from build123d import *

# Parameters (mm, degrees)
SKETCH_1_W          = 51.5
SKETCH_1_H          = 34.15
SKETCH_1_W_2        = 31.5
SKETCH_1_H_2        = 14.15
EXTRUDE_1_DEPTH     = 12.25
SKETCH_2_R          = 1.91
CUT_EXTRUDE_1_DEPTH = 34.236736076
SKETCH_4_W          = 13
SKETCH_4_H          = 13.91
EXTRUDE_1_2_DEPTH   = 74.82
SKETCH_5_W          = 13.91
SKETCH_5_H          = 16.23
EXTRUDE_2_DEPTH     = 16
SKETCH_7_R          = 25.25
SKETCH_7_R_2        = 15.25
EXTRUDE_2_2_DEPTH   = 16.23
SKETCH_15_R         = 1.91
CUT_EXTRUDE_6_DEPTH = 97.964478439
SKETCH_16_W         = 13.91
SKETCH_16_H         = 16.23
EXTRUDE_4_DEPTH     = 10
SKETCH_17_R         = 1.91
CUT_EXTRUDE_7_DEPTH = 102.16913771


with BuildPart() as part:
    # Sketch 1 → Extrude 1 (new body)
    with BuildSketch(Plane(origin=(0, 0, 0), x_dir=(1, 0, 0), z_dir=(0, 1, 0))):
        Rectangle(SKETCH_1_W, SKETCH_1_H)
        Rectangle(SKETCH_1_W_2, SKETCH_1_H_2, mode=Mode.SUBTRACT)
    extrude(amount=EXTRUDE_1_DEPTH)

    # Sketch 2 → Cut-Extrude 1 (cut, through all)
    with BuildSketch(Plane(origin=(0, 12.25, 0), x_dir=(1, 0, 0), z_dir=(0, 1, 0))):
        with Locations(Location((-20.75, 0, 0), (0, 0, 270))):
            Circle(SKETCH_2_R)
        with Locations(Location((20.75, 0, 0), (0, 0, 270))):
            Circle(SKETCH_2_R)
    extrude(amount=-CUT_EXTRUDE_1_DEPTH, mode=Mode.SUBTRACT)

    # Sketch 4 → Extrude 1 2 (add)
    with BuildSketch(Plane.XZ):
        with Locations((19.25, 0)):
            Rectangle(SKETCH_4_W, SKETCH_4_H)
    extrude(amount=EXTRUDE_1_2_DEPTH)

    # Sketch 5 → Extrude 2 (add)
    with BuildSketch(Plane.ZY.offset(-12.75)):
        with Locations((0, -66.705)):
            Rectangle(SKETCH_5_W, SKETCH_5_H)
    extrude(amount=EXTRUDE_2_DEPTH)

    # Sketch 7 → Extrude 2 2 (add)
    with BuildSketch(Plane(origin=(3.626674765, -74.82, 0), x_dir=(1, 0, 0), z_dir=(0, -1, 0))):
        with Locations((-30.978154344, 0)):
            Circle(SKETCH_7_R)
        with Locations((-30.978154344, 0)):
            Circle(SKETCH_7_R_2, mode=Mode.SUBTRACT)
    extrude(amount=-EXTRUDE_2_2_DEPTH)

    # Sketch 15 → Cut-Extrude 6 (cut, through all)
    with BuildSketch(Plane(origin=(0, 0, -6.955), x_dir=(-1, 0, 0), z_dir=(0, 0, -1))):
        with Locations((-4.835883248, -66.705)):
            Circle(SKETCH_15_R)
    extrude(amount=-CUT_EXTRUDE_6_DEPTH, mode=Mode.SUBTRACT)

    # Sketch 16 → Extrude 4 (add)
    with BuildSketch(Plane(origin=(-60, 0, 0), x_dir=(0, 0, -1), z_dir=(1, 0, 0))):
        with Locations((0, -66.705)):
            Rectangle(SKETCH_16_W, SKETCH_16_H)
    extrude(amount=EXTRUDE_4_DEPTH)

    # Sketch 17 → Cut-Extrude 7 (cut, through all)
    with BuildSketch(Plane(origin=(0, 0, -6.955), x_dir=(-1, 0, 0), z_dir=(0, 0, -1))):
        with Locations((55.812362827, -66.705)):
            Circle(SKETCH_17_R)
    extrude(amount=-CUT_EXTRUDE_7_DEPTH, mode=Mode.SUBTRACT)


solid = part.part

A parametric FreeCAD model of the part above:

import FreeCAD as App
import Part
import Sketcher
from FreeCAD import Vector
Q = App.Units.Quantity


def add_polygon(sketch, points):
    """Adds a closed chain of lines whose ends are joined by coincident constraints."""
    first, n = sketch.GeometryCount, len(points)
    for a, b in zip(points, points[1:] + points[:1]):
        sketch.addGeometry(Part.LineSegment(App.Vector(*a, 0), App.Vector(*b, 0)), False)
    for i in range(n):
        sketch.addConstraint(Sketcher.Constraint("Coincident", first + i, 2, first + (i + 1) % n, 1))

doc = App.newDocument("Part")
body = doc.addObject("PartDesign::Body", "Body")

# Sketch on XZ plane
sketch1 = doc.addObject("Sketcher::SketchObject", "Sketch")
body.addObject(sketch1)
sketch1.AttachmentSupport = (doc.XZ_Plane, [""])
sketch1.MapMode = "FlatFace"
add_polygon(sketch1, [(-26, -17), (-26, 17), (26, 17), (26, -17)])  # lines 0-3
add_polygon(sketch1, [(16, 7), (-16, 7), (-16, -7), (16, -7)])  # lines 4-7
sketch1.addConstraint([
    Sketcher.Constraint("Vertical", 0),
    Sketcher.Constraint("Horizontal", 1),
    Sketcher.Constraint("Vertical", 2),
    Sketcher.Constraint("Horizontal", 3),
    Sketcher.Constraint("Horizontal", 4),
    Sketcher.Constraint("Vertical", 5),
    Sketcher.Constraint("Horizontal", 6),
    Sketcher.Constraint("Vertical", 7),
    Sketcher.Constraint("Symmetric", 0, 2, 2, 2, -1, 1),
    Sketcher.Constraint("Symmetric", 4, 2, 6, 2, -1, 1),
    Sketcher.Constraint("DistanceX", 1, 1, 1, 2, Q("51.5 mm")),
    Sketcher.Constraint("DistanceX", 4, 2, 4, 1, Q("31.5 mm")),
    Sketcher.Constraint("DistanceY", 4, 2, 0, 2, Q("10 mm")),
    Sketcher.Constraint("DistanceY", 0, 1, 0, 2, Q("34.15 mm")),
])
pad1 = doc.addObject("PartDesign::Pad", "Pad")
body.addObject(pad1)
pad1.Profile = sketch1
pad1.Length = 12.25
pad1.Reversed = True

# Sketch on XZ plane
sketch2 = doc.addObject("Sketcher::SketchObject", "Sketch001")
body.addObject(sketch2)
sketch2.AttachmentSupport = (doc.XZ_Plane, [""])
sketch2.MapMode = "FlatFace"
sketch2.AttachmentOffset = App.Placement(Vector(0, 0, -12.25), App.Rotation())
sketch2.addGeometry([
    Part.Circle(Vector(-20.8, 0, 0), Vector(0, 0, 1), 1.9),
    Part.Circle(Vector(20.8, 0, 0), Vector(0, 0, 1), 1.9),
], False)
sketch2.addConstraint([
    Sketcher.Constraint("Equal", 0, 1),
    Sketcher.Constraint("Symmetric", 0, 3, 1, 3, -1, 1),
    Sketcher.Constraint("PointOnObject", 0, 3, -1),
    Sketcher.Constraint("Diameter", 0, Q("3.82 mm")),
    Sketcher.Constraint("DistanceX", 0, 3, 1, 3, Q("41.5 mm")),
])
pocket1 = doc.addObject("PartDesign::Pocket", "Pocket")
body.addObject(pocket1)
pocket1.Profile = sketch2
pocket1.Type = "ThroughAll"
pocket1.Reversed = True

# Sketch on XZ plane
sketch3 = doc.addObject("Sketcher::SketchObject", "Sketch002")
body.addObject(sketch3)
sketch3.AttachmentSupport = (doc.XZ_Plane, [""])
sketch3.MapMode = "FlatFace"
add_polygon(sketch3, [(13, 7), (13, -7), (26, -7), (26, 7)])  # lines 0-3
sketch3.addConstraint([
    Sketcher.Constraint("Vertical", 0),
    Sketcher.Constraint("Horizontal", 1),
    Sketcher.Constraint("Vertical", 2),
    Sketcher.Constraint("Horizontal", 3),
    Sketcher.Constraint("DistanceX", 1, 1, 1, 2, Q("13 mm")),
    Sketcher.Constraint("DistanceY", 0, 2, 0, 1, Q("13.91 mm")),
    Sketcher.Constraint("DistanceX", -1, 1, 0, 2, Q("12.75 mm")),
    Sketcher.Constraint("DistanceY", 0, 2, -1, 1, Q("6.955 mm")),
])
pad2 = doc.addObject("PartDesign::Pad", "Pad001")
body.addObject(pad2)
pad2.Profile = sketch3
pad2.Length = 74.82

# Sketch on YZ plane
sketch4 = doc.addObject("Sketcher::SketchObject", "Sketch003")
body.addObject(sketch4)
sketch4.AttachmentSupport = (doc.YZ_Plane, [""])
sketch4.MapMode = "FlatFace"
sketch4.AttachmentOffset = App.Placement(Vector(0, 0, 12.75), App.Rotation())
add_polygon(sketch4, [(-59, -7), (-75, -7), (-75, 7), (-59, 7)])  # lines 0-3
sketch4.addConstraint([
    Sketcher.Constraint("Horizontal", 0),
    Sketcher.Constraint("Vertical", 1),
    Sketcher.Constraint("Horizontal", 2),
    Sketcher.Constraint("Vertical", 3),
    Sketcher.Constraint("DistanceX", 0, 2, 0, 1, Q("16.23 mm")),
    Sketcher.Constraint("DistanceY", 1, 1, 1, 2, Q("13.91 mm")),
    Sketcher.Constraint("DistanceX", 0, 2, -1, 1, Q("74.82 mm")),
    Sketcher.Constraint("DistanceY", 0, 2, -1, 1, Q("6.955 mm")),
])
pad3 = doc.addObject("PartDesign::Pad", "Pad002")
body.addObject(pad3)
pad3.Profile = sketch4
pad3.Length = 16
pad3.Reversed = True

# Sketch on XZ plane
sketch5 = doc.addObject("Sketcher::SketchObject", "Sketch004")
body.addObject(sketch5)
sketch5.AttachmentSupport = (doc.XZ_Plane, [""])
sketch5.MapMode = "FlatFace"
sketch5.AttachmentOffset = App.Placement(Vector(0, 0, 74.82), App.Rotation())
sketch5.addGeometry([
    Part.Circle(Vector(-27, 0, 0), Vector(0, 0, 1), 25),
    Part.Circle(Vector(-27, 0, 0), Vector(0, 0, 1), 15),
], False)
sketch5.addConstraint([
    Sketcher.Constraint("Coincident", 1, 3, 0, 3),
    Sketcher.Constraint("PointOnObject", 0, 3, -1),
    Sketcher.Constraint("Diameter", 0, Q("50.5 mm")),
    Sketcher.Constraint("Diameter", 1, Q("30.5 mm")),
    Sketcher.Constraint("DistanceX", 0, 3, -1, 1, Q("27.35148 mm")),
])
pad4 = doc.addObject("PartDesign::Pad", "Pad003")
body.addObject(pad4)
pad4.Profile = sketch5
pad4.Length = 16.23
pad4.Reversed = True

# Sketch on XY plane
sketch6 = doc.addObject("Sketcher::SketchObject", "Sketch005")
body.addObject(sketch6)
sketch6.AttachmentSupport = (doc.XY_Plane, [""])
sketch6.MapMode = "FlatFace"
sketch6.AttachmentOffset = App.Placement(Vector(0, 0, -6.955), App.Rotation())
sketch6.addGeometry(Part.Circle(Vector(4.8, -66.7, 0), Vector(0, 0, 1), 1.9), False)
sketch6.addConstraint([
    Sketcher.Constraint("Diameter", 0, Q("3.82 mm")),
    Sketcher.Constraint("DistanceY", 0, 3, -1, 1, Q("66.705 mm")),
    Sketcher.Constraint("DistanceX", -1, 1, 0, 3, Q("4.835883 mm")),
])
pocket2 = doc.addObject("PartDesign::Pocket", "Pocket001")
body.addObject(pocket2)
pocket2.Profile = sketch6
pocket2.Type = "ThroughAll"
pocket2.Reversed = True

# Sketch on YZ plane
sketch7 = doc.addObject("Sketcher::SketchObject", "Sketch006")
body.addObject(sketch7)
sketch7.AttachmentSupport = (doc.YZ_Plane, [""])
sketch7.MapMode = "FlatFace"
sketch7.AttachmentOffset = App.Placement(Vector(0, 0, -60), App.Rotation())
add_polygon(sketch7, [(-59, 7), (-75, 7), (-75, -7), (-59, -7)])  # lines 0-3
sketch7.addConstraint([
    Sketcher.Constraint("Horizontal", 0),
    Sketcher.Constraint("Vertical", 1),
    Sketcher.Constraint("Horizontal", 2),
    Sketcher.Constraint("Vertical", 3),
    Sketcher.Constraint("DistanceX", 0, 2, 0, 1, Q("16.23 mm")),
    Sketcher.Constraint("DistanceY", 1, 2, 1, 1, Q("13.91 mm")),
    Sketcher.Constraint("DistanceX", 0, 2, -1, 1, Q("74.82 mm")),
    Sketcher.Constraint("DistanceY", -1, 1, 0, 2, Q("6.955 mm")),
])
pad5 = doc.addObject("PartDesign::Pad", "Pad004")
body.addObject(pad5)
pad5.Profile = sketch7
pad5.Length = 10

# Sketch on XY plane
sketch8 = doc.addObject("Sketcher::SketchObject", "Sketch007")
body.addObject(sketch8)
sketch8.AttachmentSupport = (doc.XY_Plane, [""])
sketch8.MapMode = "FlatFace"
sketch8.AttachmentOffset = App.Placement(Vector(0, 0, -6.955), App.Rotation())
sketch8.addGeometry(Part.Circle(Vector(-55.8, -66.7, 0), Vector(0, 0, 1), 1.9), False)
sketch8.addConstraint([
    Sketcher.Constraint("Diameter", 0, Q("3.82 mm")),
    Sketcher.Constraint("DistanceY", 0, 3, -1, 1, Q("66.705 mm")),
    Sketcher.Constraint("DistanceX", 0, 3, -1, 1, Q("55.812363 mm")),
])
pocket3 = doc.addObject("PartDesign::Pocket", "Pocket002")
body.addObject(pocket3)
pocket3.Profile = sketch8
pocket3.Type = "ThroughAll"
pocket3.Reversed = True

doc.recompute()
